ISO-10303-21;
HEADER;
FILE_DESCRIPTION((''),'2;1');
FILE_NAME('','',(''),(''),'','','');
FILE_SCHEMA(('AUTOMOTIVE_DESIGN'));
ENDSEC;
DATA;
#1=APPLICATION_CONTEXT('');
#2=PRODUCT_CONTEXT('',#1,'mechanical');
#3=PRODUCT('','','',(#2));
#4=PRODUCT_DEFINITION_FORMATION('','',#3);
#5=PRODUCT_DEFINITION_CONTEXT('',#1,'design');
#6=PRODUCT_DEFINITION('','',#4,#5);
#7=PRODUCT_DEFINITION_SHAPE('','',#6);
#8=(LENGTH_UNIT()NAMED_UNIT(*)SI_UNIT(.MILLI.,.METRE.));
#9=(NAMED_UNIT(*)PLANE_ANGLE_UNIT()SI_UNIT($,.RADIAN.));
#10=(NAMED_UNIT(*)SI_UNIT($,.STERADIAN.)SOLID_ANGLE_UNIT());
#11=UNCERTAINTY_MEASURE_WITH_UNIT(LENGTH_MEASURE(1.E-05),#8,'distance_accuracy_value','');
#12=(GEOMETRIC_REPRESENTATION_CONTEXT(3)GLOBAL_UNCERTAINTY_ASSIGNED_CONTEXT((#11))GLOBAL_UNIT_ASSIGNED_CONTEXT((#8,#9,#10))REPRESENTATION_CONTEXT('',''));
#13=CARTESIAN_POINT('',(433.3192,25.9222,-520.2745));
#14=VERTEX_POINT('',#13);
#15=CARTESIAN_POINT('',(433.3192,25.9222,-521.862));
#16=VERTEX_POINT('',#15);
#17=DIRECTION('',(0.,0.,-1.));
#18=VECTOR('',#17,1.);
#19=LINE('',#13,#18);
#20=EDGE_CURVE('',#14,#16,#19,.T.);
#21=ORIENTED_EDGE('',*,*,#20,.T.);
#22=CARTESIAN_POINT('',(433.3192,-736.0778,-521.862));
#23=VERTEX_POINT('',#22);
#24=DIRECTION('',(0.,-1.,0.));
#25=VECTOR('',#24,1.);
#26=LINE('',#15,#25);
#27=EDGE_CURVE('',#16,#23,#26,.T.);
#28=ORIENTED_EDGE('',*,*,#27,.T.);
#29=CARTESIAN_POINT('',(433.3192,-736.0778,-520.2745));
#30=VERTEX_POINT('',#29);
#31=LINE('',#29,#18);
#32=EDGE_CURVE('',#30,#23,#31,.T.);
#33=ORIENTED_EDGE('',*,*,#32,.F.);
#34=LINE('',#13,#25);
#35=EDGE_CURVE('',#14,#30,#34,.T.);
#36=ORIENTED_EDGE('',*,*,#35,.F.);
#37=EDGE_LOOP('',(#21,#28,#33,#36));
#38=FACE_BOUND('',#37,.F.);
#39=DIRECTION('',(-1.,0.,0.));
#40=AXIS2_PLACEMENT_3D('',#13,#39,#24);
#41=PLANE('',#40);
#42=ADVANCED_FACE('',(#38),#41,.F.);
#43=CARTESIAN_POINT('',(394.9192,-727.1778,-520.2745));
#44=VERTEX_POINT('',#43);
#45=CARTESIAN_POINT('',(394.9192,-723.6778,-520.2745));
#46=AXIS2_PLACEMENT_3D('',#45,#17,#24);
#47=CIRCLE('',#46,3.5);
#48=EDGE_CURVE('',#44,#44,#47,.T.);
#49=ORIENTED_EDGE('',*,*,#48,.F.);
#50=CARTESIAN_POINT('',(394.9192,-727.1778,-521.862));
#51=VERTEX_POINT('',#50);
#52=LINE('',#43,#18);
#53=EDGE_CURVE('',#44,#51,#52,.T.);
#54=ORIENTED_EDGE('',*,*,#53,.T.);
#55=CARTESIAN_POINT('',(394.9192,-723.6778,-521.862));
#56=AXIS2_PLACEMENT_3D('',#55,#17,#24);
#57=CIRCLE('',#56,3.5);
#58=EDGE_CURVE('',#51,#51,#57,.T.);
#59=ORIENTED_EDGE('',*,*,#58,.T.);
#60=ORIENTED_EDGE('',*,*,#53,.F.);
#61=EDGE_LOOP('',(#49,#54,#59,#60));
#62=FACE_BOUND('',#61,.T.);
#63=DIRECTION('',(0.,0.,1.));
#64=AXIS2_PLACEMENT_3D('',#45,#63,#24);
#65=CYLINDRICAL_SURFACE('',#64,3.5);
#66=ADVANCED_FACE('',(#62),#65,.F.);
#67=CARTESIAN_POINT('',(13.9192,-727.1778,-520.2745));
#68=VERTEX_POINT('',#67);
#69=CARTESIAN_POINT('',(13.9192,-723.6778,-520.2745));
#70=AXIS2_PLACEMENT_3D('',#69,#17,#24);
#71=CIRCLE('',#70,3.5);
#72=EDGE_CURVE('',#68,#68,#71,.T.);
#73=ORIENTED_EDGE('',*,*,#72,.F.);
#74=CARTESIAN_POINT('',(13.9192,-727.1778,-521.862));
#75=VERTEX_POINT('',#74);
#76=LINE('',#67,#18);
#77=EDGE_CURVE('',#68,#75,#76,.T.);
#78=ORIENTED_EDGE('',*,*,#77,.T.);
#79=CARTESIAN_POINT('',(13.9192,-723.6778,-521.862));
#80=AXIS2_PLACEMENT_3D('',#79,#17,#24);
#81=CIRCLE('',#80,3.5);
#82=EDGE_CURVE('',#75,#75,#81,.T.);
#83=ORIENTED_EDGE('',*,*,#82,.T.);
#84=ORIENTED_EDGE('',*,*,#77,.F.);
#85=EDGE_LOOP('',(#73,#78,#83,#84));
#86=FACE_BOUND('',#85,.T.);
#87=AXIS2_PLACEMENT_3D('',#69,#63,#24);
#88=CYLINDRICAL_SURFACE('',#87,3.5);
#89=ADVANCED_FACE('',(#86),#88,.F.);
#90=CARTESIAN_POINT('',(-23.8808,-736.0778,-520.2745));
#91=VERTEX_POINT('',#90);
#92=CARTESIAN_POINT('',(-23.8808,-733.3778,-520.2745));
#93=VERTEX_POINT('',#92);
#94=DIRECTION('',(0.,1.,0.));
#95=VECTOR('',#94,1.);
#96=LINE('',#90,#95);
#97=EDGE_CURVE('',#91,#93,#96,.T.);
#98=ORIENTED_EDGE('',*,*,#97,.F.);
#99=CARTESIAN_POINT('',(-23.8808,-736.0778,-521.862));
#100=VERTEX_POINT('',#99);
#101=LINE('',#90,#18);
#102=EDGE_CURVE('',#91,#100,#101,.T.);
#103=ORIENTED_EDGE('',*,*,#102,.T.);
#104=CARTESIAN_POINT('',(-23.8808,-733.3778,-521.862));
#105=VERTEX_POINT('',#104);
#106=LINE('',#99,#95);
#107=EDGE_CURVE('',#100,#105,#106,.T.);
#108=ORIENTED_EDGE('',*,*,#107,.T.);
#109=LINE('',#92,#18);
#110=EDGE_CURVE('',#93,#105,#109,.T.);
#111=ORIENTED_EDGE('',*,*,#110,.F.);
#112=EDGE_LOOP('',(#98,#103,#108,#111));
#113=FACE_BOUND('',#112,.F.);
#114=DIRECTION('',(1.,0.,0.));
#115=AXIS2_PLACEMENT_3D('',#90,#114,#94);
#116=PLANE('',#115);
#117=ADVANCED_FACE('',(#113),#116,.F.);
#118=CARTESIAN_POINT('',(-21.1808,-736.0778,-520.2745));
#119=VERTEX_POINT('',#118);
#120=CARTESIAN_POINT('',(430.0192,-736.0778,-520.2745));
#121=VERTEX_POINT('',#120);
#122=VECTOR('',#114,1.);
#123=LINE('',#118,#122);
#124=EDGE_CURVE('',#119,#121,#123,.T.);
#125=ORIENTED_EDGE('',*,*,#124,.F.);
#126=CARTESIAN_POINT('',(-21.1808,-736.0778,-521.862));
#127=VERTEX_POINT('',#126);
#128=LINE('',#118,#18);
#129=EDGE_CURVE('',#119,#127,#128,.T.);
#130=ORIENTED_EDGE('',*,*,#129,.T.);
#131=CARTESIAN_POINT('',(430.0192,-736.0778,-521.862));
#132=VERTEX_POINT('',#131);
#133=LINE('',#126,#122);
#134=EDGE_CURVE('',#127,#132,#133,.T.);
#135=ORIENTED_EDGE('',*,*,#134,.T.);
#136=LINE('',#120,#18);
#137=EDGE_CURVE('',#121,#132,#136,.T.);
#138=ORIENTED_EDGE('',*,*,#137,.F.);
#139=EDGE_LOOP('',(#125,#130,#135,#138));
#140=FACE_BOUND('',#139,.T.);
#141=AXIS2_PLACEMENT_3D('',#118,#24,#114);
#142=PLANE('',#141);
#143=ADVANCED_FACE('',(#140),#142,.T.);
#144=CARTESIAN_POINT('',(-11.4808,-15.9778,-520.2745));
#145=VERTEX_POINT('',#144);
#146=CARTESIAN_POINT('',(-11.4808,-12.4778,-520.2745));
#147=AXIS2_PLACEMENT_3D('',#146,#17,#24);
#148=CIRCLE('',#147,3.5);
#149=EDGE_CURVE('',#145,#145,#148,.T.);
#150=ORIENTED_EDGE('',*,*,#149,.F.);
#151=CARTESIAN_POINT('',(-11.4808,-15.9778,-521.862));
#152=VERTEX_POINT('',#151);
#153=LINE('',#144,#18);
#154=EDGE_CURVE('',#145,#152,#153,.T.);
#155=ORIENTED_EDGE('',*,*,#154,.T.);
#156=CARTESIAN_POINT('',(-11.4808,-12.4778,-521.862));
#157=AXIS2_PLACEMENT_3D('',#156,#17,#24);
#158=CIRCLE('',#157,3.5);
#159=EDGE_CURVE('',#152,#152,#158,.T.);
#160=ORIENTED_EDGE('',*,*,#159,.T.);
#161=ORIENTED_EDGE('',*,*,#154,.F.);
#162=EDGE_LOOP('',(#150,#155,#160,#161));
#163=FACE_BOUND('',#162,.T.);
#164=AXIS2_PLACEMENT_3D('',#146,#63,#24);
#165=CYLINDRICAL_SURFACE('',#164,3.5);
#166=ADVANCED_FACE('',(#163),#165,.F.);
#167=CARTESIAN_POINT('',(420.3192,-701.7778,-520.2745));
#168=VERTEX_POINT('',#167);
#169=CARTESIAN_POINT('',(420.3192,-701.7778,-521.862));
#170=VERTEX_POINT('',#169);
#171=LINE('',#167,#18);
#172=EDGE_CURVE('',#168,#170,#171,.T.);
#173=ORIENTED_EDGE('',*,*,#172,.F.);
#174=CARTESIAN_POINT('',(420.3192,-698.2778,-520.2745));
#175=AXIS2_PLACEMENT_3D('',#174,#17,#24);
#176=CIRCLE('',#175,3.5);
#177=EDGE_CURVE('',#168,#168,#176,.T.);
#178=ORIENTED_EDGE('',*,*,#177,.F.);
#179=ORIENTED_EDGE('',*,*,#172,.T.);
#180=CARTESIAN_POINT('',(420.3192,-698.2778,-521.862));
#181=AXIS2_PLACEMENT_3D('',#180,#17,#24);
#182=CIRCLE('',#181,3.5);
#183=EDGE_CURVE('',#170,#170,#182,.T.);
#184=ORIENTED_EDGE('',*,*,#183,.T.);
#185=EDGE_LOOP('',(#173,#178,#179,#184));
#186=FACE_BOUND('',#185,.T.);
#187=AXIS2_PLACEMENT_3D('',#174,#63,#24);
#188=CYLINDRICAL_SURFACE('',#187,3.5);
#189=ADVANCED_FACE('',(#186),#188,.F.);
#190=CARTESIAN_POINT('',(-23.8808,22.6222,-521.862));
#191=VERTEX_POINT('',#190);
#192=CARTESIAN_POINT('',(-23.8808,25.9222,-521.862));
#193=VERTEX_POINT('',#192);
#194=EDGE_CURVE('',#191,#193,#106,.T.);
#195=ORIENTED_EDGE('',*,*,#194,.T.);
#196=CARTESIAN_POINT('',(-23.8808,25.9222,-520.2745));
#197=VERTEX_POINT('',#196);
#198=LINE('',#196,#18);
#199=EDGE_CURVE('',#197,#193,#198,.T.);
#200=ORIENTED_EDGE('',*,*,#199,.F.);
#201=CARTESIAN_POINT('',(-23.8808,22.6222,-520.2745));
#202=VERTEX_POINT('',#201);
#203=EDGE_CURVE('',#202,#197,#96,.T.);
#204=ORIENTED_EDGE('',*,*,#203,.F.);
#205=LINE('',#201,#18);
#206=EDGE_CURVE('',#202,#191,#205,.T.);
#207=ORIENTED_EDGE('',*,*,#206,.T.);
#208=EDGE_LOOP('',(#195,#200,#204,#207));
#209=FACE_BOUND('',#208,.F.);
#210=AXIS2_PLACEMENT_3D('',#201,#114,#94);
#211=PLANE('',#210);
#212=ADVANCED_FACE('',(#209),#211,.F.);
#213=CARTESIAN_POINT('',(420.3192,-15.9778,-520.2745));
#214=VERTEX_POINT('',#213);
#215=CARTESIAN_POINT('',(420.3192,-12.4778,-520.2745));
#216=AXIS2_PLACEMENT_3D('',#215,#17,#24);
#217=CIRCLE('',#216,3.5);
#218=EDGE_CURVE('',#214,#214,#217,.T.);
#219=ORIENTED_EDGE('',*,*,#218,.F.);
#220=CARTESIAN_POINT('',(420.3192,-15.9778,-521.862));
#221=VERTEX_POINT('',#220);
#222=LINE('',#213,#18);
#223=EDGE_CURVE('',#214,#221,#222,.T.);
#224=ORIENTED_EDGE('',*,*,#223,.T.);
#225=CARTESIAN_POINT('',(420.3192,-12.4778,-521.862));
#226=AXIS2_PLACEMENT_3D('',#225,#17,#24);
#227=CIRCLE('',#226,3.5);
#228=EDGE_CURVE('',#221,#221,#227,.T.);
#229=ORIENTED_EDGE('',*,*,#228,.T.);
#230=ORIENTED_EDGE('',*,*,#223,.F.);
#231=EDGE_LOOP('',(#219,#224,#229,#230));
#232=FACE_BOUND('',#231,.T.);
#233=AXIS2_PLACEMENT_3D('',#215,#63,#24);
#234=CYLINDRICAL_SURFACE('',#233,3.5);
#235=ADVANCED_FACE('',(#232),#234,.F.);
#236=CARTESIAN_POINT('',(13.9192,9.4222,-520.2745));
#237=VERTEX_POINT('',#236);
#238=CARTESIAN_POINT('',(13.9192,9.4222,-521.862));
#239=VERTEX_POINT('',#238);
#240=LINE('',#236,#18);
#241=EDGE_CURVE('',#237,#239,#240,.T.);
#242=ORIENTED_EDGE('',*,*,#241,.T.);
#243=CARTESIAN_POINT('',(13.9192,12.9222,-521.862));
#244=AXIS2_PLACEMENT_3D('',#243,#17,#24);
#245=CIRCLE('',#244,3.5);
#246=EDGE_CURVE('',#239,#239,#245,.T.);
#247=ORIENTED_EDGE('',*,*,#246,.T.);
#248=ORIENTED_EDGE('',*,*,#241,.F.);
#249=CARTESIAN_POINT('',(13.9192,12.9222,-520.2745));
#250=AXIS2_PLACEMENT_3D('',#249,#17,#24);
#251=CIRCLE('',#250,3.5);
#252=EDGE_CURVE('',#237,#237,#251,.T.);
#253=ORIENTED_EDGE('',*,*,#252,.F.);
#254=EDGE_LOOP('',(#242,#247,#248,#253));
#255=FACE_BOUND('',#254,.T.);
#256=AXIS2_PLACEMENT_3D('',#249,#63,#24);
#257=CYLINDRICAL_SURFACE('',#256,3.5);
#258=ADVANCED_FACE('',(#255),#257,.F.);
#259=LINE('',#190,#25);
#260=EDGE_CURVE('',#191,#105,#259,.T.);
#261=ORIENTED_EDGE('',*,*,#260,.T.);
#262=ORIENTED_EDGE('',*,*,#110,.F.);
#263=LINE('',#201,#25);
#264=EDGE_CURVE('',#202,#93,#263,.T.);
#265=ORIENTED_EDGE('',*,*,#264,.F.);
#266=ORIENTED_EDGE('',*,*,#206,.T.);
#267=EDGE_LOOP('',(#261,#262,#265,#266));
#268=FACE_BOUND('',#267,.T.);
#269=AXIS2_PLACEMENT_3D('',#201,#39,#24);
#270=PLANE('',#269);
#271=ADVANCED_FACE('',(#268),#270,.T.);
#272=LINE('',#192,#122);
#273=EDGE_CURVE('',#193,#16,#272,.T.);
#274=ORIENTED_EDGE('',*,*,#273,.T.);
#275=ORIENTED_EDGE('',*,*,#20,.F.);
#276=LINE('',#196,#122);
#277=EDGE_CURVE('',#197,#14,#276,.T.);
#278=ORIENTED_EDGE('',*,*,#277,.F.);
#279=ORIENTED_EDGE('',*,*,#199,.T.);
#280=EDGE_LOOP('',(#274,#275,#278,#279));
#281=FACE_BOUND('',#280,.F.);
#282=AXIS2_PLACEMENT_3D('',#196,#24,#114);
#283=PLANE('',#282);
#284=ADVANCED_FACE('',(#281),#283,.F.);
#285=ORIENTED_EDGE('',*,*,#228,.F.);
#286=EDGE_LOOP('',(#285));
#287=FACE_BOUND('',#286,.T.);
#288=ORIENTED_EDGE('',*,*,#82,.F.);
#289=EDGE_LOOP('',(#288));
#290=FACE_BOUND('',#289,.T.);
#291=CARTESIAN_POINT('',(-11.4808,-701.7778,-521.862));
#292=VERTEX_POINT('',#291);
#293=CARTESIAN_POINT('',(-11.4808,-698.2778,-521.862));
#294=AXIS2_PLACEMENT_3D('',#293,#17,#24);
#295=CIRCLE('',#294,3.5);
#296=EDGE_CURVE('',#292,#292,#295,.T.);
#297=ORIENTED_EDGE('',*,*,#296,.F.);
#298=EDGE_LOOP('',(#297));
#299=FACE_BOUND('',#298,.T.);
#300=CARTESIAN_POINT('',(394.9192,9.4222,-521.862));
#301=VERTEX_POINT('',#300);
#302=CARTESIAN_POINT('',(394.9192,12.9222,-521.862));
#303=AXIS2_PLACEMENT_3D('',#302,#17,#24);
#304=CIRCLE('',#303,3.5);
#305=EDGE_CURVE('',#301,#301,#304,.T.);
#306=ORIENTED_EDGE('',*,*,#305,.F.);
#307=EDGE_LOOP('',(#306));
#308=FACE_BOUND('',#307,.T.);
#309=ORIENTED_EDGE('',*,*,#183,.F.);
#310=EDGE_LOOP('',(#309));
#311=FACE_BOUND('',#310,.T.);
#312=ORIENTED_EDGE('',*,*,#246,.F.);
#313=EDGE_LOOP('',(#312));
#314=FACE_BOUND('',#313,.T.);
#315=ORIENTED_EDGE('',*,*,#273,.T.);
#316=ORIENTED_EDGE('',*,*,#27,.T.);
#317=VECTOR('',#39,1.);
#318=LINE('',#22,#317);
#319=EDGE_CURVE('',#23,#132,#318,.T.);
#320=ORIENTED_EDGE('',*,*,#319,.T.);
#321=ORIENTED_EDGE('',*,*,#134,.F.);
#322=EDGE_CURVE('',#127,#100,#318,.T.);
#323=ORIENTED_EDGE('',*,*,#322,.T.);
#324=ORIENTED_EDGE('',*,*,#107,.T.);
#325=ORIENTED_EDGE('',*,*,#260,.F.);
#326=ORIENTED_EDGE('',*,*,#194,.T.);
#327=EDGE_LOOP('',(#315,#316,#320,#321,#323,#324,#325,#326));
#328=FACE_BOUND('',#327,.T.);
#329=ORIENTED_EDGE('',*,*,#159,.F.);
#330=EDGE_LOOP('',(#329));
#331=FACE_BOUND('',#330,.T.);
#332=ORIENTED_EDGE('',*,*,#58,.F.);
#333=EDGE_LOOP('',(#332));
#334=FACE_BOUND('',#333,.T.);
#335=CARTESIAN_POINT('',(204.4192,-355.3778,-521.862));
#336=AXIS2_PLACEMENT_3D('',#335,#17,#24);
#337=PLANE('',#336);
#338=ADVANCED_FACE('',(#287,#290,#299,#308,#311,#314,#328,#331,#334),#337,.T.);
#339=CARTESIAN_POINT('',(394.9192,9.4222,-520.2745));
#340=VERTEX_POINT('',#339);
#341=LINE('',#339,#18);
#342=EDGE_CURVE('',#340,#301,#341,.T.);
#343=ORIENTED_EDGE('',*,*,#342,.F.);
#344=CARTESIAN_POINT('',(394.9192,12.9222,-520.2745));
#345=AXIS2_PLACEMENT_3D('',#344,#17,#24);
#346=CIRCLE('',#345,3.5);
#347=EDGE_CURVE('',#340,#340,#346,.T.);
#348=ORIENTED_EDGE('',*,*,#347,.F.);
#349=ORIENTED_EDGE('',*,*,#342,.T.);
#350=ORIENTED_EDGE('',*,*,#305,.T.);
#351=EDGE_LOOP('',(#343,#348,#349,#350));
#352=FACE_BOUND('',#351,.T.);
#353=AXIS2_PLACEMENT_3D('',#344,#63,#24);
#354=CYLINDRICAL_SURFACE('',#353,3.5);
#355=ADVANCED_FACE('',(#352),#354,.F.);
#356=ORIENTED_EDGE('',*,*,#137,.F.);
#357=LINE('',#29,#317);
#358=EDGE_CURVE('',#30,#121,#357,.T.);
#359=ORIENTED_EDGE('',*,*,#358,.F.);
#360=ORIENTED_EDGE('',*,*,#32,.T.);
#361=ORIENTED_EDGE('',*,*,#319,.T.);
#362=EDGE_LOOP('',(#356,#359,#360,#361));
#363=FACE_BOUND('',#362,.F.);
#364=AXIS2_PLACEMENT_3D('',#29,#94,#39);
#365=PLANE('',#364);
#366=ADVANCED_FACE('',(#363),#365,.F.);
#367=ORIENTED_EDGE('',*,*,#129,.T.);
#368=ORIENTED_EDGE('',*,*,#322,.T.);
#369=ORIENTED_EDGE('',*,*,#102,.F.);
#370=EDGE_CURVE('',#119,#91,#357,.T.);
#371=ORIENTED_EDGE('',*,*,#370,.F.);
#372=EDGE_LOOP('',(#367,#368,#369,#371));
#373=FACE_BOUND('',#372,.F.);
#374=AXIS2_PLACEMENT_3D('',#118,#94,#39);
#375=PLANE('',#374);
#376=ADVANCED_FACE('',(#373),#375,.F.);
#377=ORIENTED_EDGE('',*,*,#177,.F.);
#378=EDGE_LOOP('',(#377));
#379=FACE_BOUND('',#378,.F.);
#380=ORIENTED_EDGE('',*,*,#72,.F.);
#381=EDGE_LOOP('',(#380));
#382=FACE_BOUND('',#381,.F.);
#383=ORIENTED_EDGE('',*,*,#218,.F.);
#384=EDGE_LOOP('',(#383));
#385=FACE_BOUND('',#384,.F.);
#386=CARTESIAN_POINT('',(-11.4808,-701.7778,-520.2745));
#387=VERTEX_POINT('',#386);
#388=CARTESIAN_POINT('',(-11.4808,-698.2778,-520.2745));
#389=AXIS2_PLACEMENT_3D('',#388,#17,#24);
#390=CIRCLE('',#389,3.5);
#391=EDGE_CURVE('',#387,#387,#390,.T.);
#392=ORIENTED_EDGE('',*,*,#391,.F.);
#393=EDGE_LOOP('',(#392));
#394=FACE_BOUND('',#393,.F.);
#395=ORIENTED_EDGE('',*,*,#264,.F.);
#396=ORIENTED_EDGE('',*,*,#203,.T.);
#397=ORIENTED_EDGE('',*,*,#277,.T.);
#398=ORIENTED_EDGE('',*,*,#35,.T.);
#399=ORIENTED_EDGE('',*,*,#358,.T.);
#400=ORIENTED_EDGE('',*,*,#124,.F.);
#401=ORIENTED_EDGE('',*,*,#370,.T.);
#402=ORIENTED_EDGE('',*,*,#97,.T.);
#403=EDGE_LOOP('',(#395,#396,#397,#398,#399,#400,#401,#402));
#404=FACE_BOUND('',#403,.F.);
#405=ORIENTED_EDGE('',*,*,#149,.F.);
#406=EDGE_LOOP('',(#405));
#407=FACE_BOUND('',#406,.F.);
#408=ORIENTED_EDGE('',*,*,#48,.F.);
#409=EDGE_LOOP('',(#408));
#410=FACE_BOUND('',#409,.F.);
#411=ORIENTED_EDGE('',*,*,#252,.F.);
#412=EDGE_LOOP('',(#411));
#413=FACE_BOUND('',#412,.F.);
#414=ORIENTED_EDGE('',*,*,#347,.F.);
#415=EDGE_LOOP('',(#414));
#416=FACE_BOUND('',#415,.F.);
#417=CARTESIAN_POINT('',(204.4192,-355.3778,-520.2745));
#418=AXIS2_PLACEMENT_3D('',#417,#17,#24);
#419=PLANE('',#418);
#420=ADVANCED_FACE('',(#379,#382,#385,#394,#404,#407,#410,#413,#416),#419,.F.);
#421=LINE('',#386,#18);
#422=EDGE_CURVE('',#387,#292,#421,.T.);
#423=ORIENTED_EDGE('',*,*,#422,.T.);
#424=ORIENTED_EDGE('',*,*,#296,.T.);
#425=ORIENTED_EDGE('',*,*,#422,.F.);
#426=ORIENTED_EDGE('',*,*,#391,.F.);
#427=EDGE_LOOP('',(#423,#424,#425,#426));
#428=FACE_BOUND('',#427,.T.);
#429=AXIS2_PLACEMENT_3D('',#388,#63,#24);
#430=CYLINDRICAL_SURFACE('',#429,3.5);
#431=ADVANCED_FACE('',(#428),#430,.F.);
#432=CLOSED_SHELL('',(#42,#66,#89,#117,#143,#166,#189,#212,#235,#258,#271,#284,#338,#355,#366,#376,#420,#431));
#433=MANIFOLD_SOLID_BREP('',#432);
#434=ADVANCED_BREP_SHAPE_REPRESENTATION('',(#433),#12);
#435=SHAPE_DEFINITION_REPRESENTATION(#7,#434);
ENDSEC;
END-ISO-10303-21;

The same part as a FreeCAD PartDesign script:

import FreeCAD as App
import Part
import Sketcher
Q = App.Units.Quantity


def add_polygon(sketch, points):
    """Adds a closed chain of lines whose ends are joined by coincident constraints."""
    first, n = sketch.GeometryCount, len(points)
    for a, b in zip(points, points[1:] + points[:1]):
        sketch.addGeometry(Part.LineSegment(App.Vector(*a, 0), App.Vector(*b, 0)), False)
    for i in range(n):
        sketch.addConstraint(Sketcher.Constraint("Coincident", first + i, 2, first + (i + 1) % n, 1))

doc = App.newDocument("Part")
params = doc.addObject("Spreadsheet::Sheet", "Params")
for row, (alias, value) in enumerate([
    ("sketch1_width", "18 in"),
    ("sketch1_height", "30 in"),
    ("pad1_length", "0.0625 in"),
], start=1):
    params.set(f"A{row}", alias)
    params.set(f"B{row}", "=" + value)
    params.setAlias(f"B{row}", alias)

body = doc.addObject("PartDesign::Body", "Body")

sketch1 = body.newObject("Sketcher::SketchObject", "Sketch")
sketch1.AttachmentSupport = (doc.getObject("XY_Plane"), [""])
sketch1.MapMode = "FlatFace"
sketch1.AttachmentOffset = App.Placement(App.Vector(0, 0, -520.2745), App.Rotation())
add_polygon(sketch1, [(433.3, -736.1), (-23.9, -736.1), (-23.9, 25.9), (433.3, 25.9)])
sketch1.addGeometry(Part.Circle(App.Vector(420.3, -12.5, 0), App.Vector(0, 0, 1), 3.5), False)
sketch1.addGeometry(Part.Circle(App.Vector(394.9, 12.9, 0), App.Vector(0, 0, 1), 3.5), False)
sketch1.addGeometry(Part.Circle(App.Vector(420.3, -698.3, 0), App.Vector(0, 0, 1), 3.5), False)
sketch1.addGeometry(Part.Circle(App.Vector(394.9, -723.7, 0), App.Vector(0, 0, 1), 3.5), False)
sketch1.addGeometry(Part.Circle(App.Vector(13.9, 12.9, 0), App.Vector(0, 0, 1), 3.5), False)
sketch1.addGeometry(Part.Circle(App.Vector(-11.5, -12.5, 0), App.Vector(0, 0, 1), 3.5), False)
sketch1.addGeometry(Part.Circle(App.Vector(13.9, -723.7, 0), App.Vector(0, 0, 1), 3.5), False)
sketch1.addGeometry(Part.Circle(App.Vector(-11.5, -698.3, 0), App.Vector(0, 0, 1), 3.5), False)
sketch1.addConstraint(Sketcher.Constraint("Horizontal", 0))
sketch1.addConstraint(Sketcher.Constraint("Vertical", 1))
sketch1.addConstraint(Sketcher.Constraint("Horizontal", 2))
sketch1.addConstraint(Sketcher.Constraint("Vertical", 3))
sketch1.addConstraint(Sketcher.Constraint("Equal", 4, 5))
sketch1.addConstraint(Sketcher.Constraint("Equal", 5, 6))
sketch1.addConstraint(Sketcher.Constraint("Equal", 6, 7))
sketch1.addConstraint(Sketcher.Constraint("Equal", 7, 8))
sketch1.addConstraint(Sketcher.Constraint("Equal", 8, 9))
sketch1.addConstraint(Sketcher.Constraint("Equal", 9, 10))
sketch1.addConstraint(Sketcher.Constraint("Equal", 10, 11))
sketch1.addConstraint(Sketcher.Constraint("Horizontal", 5, 3, 8, 3))
sketch1.addConstraint(Sketcher.Constraint("Horizontal", 4, 3, 9, 3))
sketch1.addConstraint(Sketcher.Constraint("Horizontal", 7, 3, 10, 3))
sketch1.addConstraint(Sketcher.Constraint("Horizontal", 6, 3, 11, 3))
sketch1.addConstraint(Sketcher.Constraint("Vertical", 4, 3, 6, 3))
sketch1.addConstraint(Sketcher.Constraint("Vertical", 5, 3, 7, 3))
sketch1.addConstraint(Sketcher.Constraint("Vertical", 8, 3, 10, 3))
sketch1.addConstraint(Sketcher.Constraint("Vertical", 9, 3, 11, 3))
sketch1.addConstraint(Sketcher.Constraint("DistanceX", 0, 2, 0, 1, Q("18 in")))
sketch1.addConstraint(Sketcher.Constraint("DistanceY", 1, 1, 1, 2, Q("30 in")))
sketch1.addConstraint(Sketcher.Constraint("DistanceX", 5, 3, 4, 3, Q("1 in")))
sketch1.addConstraint(Sketcher.Constraint("DistanceY", 4, 3, 5, 3, Q("1 in")))
sketch1.addConstraint(Sketcher.Constraint("DistanceY", 6, 3, 4, 3, Q("27 in")))
sketch1.addConstraint(Sketcher.Constraint("DistanceY", 7, 3, 6, 3, Q("1 in")))
sketch1.addConstraint(Sketcher.Constraint("DistanceX", 8, 3, 5, 3, Q("15 in")))
sketch1.addConstraint(Sketcher.Constraint("DistanceX", 9, 3, 8, 3, Q("1 in")))
sketch1.addConstraint(Sketcher.Constraint("Diameter", 4, Q("0.2756 in")))
sketch1.addConstraint(Sketcher.Constraint("DistanceX", -1, 1, 4, 3, Q("16.548 in")))
sketch1.addConstraint(Sketcher.Constraint("DistanceX", 0, 2, -1, 1, Q("0.9402 in")))
sketch1.addConstraint(Sketcher.Constraint("DistanceY", 0, 2, 10, 3, Q("0.4882 in")))
sketch1.addConstraint(Sketcher.Constraint("DistanceY", 4, 3, -1, 1, Q("12.4778 mm")))
sketch1.setExpression("Constraints[23]", "Params.sketch1_width")
sketch1.setExpression("Constraints[24]", "Params.sketch1_height")
pad1 = body.newObject("PartDesign::Pad", "Pad")
pad1.Profile = sketch1
pad1.setExpression("Length", "Params.pad1_length")
pad1.Reversed = True

doc.recompute()
